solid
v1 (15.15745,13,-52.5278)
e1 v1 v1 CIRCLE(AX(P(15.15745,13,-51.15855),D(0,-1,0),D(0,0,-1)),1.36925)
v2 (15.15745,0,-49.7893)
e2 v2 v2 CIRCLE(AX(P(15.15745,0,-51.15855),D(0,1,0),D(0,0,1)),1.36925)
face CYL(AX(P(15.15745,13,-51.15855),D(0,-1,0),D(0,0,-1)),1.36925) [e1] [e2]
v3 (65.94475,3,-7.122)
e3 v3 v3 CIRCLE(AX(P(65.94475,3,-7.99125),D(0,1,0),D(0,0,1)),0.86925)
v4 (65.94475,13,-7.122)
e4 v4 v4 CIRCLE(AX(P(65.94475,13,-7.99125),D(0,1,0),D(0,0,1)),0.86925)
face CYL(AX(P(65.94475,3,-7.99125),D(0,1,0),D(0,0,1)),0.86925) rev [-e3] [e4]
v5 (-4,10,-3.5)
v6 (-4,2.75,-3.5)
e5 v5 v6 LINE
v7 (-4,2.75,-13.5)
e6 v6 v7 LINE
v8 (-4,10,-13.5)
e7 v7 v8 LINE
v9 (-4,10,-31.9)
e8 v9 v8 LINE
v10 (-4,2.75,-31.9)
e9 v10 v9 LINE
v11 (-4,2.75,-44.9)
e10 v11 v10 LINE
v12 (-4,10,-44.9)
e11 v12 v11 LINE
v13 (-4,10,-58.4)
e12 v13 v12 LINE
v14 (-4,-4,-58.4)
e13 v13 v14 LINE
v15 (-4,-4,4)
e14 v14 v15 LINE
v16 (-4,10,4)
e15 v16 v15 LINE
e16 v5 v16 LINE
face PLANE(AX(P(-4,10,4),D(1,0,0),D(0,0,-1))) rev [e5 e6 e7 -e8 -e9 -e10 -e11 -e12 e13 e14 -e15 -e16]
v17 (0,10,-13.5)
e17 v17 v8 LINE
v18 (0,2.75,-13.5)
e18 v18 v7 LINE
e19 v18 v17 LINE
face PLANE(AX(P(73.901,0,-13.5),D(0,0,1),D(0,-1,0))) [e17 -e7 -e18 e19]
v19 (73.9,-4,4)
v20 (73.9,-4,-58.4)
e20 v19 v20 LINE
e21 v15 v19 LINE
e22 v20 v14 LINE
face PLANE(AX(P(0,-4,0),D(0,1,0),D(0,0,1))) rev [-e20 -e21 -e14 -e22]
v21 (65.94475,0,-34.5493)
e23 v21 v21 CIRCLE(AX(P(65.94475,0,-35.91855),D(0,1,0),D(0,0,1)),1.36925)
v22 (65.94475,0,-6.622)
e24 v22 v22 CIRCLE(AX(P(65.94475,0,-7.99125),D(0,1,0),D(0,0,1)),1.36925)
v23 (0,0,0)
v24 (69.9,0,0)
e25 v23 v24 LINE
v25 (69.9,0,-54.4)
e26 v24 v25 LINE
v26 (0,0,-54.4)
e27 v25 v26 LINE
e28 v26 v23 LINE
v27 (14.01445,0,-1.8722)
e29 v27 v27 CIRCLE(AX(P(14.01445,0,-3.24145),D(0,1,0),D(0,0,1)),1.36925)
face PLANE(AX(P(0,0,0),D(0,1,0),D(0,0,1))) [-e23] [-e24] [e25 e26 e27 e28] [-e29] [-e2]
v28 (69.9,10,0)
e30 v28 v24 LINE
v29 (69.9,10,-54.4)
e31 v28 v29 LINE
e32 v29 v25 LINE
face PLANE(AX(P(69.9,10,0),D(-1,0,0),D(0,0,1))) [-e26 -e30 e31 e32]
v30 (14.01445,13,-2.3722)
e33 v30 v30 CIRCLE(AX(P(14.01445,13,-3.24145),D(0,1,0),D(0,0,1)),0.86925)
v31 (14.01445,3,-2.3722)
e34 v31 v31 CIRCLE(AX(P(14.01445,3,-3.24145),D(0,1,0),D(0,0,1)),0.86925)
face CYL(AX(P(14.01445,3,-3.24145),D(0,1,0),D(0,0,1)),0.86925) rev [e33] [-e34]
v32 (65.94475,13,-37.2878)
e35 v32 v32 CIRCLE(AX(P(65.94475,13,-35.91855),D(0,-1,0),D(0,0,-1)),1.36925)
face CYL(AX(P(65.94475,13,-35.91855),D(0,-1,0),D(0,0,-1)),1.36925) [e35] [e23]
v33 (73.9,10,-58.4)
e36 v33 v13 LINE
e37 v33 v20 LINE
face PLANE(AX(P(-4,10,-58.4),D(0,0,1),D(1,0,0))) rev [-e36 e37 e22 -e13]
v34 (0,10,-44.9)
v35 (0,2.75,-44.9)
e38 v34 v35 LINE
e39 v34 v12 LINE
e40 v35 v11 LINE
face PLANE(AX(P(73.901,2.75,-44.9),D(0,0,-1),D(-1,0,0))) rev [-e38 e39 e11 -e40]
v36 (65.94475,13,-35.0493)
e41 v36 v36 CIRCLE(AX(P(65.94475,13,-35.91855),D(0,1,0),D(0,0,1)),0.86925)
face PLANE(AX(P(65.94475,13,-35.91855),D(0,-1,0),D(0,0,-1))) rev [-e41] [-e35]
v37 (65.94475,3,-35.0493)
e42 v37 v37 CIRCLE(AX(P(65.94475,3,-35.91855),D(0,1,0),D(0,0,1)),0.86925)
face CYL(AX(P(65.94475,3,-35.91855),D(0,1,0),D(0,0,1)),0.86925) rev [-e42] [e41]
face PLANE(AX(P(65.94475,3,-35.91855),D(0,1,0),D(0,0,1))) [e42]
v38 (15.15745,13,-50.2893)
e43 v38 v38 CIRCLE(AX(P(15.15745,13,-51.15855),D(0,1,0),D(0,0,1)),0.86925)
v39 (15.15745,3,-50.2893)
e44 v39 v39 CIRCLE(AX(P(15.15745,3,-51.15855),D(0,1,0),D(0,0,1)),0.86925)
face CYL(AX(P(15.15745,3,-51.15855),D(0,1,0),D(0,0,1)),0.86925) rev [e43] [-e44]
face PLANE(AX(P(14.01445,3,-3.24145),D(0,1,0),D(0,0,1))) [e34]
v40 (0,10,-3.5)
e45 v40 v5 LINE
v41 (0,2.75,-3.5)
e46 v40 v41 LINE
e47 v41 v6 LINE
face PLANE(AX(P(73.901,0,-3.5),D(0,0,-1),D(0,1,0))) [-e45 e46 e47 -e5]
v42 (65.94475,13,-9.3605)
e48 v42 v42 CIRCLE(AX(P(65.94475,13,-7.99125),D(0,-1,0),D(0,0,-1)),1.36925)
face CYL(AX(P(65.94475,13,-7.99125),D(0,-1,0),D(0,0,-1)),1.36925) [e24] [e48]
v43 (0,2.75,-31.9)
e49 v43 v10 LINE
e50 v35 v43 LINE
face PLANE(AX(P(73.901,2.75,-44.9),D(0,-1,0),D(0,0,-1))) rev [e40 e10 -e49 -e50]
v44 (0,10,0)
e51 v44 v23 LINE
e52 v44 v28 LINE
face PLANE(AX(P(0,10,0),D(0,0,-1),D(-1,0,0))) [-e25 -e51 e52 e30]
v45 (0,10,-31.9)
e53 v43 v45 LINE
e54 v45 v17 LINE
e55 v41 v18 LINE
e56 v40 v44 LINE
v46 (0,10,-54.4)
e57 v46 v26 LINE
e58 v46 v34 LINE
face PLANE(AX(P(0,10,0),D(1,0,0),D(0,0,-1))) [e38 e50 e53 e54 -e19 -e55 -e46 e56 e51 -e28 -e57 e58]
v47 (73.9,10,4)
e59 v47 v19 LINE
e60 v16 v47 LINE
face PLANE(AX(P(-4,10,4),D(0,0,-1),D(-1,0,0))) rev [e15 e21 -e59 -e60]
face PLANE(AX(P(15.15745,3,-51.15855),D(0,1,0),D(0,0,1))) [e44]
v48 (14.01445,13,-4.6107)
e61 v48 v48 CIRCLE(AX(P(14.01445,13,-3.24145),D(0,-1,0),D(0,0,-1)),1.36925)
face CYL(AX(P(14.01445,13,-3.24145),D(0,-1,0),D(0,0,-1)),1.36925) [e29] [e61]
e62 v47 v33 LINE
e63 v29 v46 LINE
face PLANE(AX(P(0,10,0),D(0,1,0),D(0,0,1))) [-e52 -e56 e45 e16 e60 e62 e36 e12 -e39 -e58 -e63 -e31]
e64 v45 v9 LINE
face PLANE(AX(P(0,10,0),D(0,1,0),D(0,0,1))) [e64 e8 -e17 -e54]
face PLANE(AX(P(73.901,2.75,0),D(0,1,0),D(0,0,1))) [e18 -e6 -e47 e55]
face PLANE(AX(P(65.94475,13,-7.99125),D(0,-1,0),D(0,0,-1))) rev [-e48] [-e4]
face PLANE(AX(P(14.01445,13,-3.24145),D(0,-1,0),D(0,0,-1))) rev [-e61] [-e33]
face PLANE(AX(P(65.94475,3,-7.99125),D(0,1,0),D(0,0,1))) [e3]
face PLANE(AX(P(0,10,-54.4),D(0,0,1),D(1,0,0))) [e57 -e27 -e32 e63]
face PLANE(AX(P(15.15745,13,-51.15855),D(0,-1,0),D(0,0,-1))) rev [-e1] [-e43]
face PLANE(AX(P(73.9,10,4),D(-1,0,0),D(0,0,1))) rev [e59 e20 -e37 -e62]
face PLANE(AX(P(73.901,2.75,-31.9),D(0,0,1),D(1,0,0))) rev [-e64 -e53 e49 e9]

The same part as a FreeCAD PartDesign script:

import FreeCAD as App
import Part
import Sketcher
from FreeCAD import Vector


def add_polygon(sketch, points):
    """Adds a closed chain of lines whose ends are joined by coincident constraints."""
    first, n = sketch.GeometryCount, len(points)
    for a, b in zip(points, points[1:] + points[:1]):
        sketch.addGeometry(Part.LineSegment(App.Vector(*a, 0), App.Vector(*b, 0)), False)
    for i in range(n):
        sketch.addConstraint(Sketcher.Constraint("Coincident", first + i, 2, first + (i + 1) % n, 1))

doc = App.newDocument("Part")
params = doc.addObject("Spreadsheet::Sheet", "Params")
for row, (alias, value) in enumerate([
    ("sketch1_width", "77.9 mm"),
    ("sketch1_width2", "69.9 mm"),
    ("sketch1_height", "62.4 mm"),
    ("sketch1_height2", "54.4 mm"),
    ("pad1_length", "10 mm"),
    ("sketch2_width", "77.9 mm"),
    ("sketch2_height", "62.4 mm"),
    ("pad2_length", "4 mm"),
    ("sketch3_height", "13 mm"),
    ("sketch3_width", "7.25 mm"),
    ("sketch4_height", "10 mm"),
    ("sketch4_width", "7.25 mm"),
    ("pad3_length", "17 mm"),
    ("pocket3_length", "10 mm"),
], start=1):
    params.set(f"A{row}", alias)
    params.set(f"B{row}", "=" + value)
    params.setAlias(f"B{row}", alias)

body = doc.addObject("PartDesign::Body", "Body")

sketch1 = body.newObject("Sketcher::SketchObject", "Sketch")
sketch1.AttachmentSupport = (doc.getObject("XZ_Plane"), [""])
sketch1.MapMode = "FlatFace"
add_polygon(sketch1, [(-4, -58), (-4, 4), (74, 4), (74, -58)])
add_polygon(sketch1, [(70, 0), (0, 0), (0, -54), (70, -54)])
sketch1.addConstraint([
    Sketcher.Constraint("Vertical", 0),
    Sketcher.Constraint("Horizontal", 1),
    Sketcher.Constraint("Vertical", 2),
    Sketcher.Constraint("Horizontal", 3),
    Sketcher.Constraint("Horizontal", 4),
    Sketcher.Constraint("Vertical", 5),
    Sketcher.Constraint("Horizontal", 6),
    Sketcher.Constraint("Vertical", 7),
    Sketcher.Constraint("Coincident", 4, 2, -1, 1),
    Sketcher.Constraint("DistanceX", 1, 1, 1, 2, 77.9),
    Sketcher.Constraint("DistanceX", 4, 2, 4, 1, 69.9),
    Sketcher.Constraint("DistanceY", 0, 1, 0, 2, 62.4),
    Sketcher.Constraint("DistanceY", 5, 2, 5, 1, 54.4),
    Sketcher.Constraint("DistanceX", 0, 2, -1, 1, 4.0),
    Sketcher.Constraint("DistanceY", -1, 1, 0, 2, 4.0),
])
sketch1.setExpression("Constraints[17]", "Params.sketch1_width")
sketch1.setExpression("Constraints[18]", "Params.sketch1_width2")
sketch1.setExpression("Constraints[19]", "Params.sketch1_height")
sketch1.setExpression("Constraints[20]", "Params.sketch1_height2")
pad1 = body.newObject("PartDesign::Pad", "Pad")
pad1.Profile = sketch1
pad1.setExpression("Length", "Params.pad1_length")
pad1.Reversed = True

sketch2 = body.newObject("Sketcher::SketchObject", "Sketch001")
sketch2.AttachmentSupport = (doc.getObject("XZ_Plane"), [""])
sketch2.MapMode = "FlatFace"
add_polygon(sketch2, [(-4, -58), (-4, 4), (74, 4), (74, -58)])
sketch2.addConstraint([
    Sketcher.Constraint("Vertical", 0),
    Sketcher.Constraint("Horizontal", 1),
    Sketcher.Constraint("Vertical", 2),
    Sketcher.Constraint("Horizontal", 3),
    Sketcher.Constraint("DistanceX", 1, 1, 1, 2, 77.9),
    Sketcher.Constraint("DistanceY", 0, 1, 0, 2, 62.4),
    Sketcher.Constraint("DistanceX", 0, 2, -1, 1, 4.0),
    Sketcher.Constraint("DistanceY", -1, 1, 0, 2, 4.0),
])
sketch2.setExpression("Constraints[8]", "Params.sketch2_width")
sketch2.setExpression("Constraints[9]", "Params.sketch2_height")
pad2 = body.newObject("PartDesign::Pad", "Pad001")
pad2.Profile = sketch2
pad2.setExpression("Length", "Params.pad2_length")

sketch3 = body.newObject("Sketcher::SketchObject", "Sketch002")
sketch3.AttachmentSupport = (doc.getObject("YZ_Plane"), [""])
sketch3.MapMode = "FlatFace"
sketch3.AttachmentOffset = App.Placement(Vector(0, 0, -4), App.Rotation())
add_polygon(sketch3, [(10, -45), (3, -45), (3, -32), (10, -32)])
sketch3.addConstraint([
    Sketcher.Constraint("Horizontal", 0),
    Sketcher.Constraint("Vertical", 1),
    Sketcher.Constraint("Horizontal", 2),
    Sketcher.Constraint("Vertical", 3),
    Sketcher.Constraint("DistanceY", 1, 1, 1, 2, 13.0),
    Sketcher.Constraint("DistanceX", -1, 1, 2, 2, 10.0),
    Sketcher.Constraint("DistanceX", 0, 2, 0, 1, 7.25),
    Sketcher.Constraint("DistanceY", 0, 2, -1, 1, 44.9),
])
sketch3.setExpression("Constraints[8]", "Params.sketch3_height")
sketch3.setExpression("Constraints[10]", "Params.sketch3_width")
pocket1 = body.newObject("PartDesign::Pocket", "Pocket")
pocket1.Profile = sketch3
pocket1.Type = "UpToFirst"
pocket1.Reversed = True

sketch4 = body.newObject("Sketcher::SketchObject", "Sketch003")
sketch4.AttachmentSupport = (doc.getObject("YZ_Plane"), [""])
sketch4.MapMode = "FlatFace"
sketch4.AttachmentOffset = App.Placement(Vector(0, 0, -4), App.Rotation())
add_polygon(sketch4, [(10, -14), (3, -14), (3, -4), (10, -4)])
sketch4.addConstraint([
    Sketcher.Constraint("Horizontal", 0),
    Sketcher.Constraint("Vertical", 1),
    Sketcher.Constraint("Horizontal", 2),
    Sketcher.Constraint("Vertical", 3),
    Sketcher.Constraint("DistanceY", 1, 1, 1, 2, 10.0),
    Sketcher.Constraint("DistanceX", -1, 1, 2, 2, 10.0),
    Sketcher.Constraint("DistanceX", 0, 2, 0, 1, 7.25),
    Sketcher.Constraint("DistanceY", 0, 2, -1, 1, 13.5),
])
sketch4.setExpression("Constraints[8]", "Params.sketch4_height")
sketch4.setExpression("Constraints[10]", "Params.sketch4_width")
pocket2 = body.newObject("PartDesign::Pocket", "Pocket001")
pocket2.Profile = sketch4
pocket2.Type = "UpToFirst"
pocket2.Reversed = True

sketch5 = body.newObject("Sketcher::SketchObject", "Sketch004")
sketch5.AttachmentSupport = (doc.getObject("XZ_Plane"), [""])
sketch5.MapMode = "FlatFace"
sketch5.AttachmentOffset = App.Placement(Vector(0, 0, 4), App.Rotation())
sketch5.addGeometry([
    Part.Circle(Vector(65.9, -8, 0), Vector(0, 0, 1), 1.4),
    Part.Circle(Vector(15.2, -51.2, 0), Vector(0, 0, 1), 1.4),
    Part.Circle(Vector(65.9, -35.9, 0), Vector(0, 0, 1), 1.4),
    Part.Circle(Vector(14, -3.2, 0), Vector(0, 0, 1), 1.4),
], False)
sketch5.addConstraint([
    Sketcher.Constraint("Equal", 0, 1),
    Sketcher.Constraint("Equal", 1, 2),
    Sketcher.Constraint("Equal", 2, 3),
    Sketcher.Constraint("Vertical", 0, 3, 2, 3),
    Sketcher.Constraint("Diameter", 0, 2.7385),
    Sketcher.Constraint("DistanceY", 1, 3, 2, 3, 15.24),
    Sketcher.Constraint("DistanceX", 3, 3, 1, 3, 1.143),
    Sketcher.Constraint("DistanceX", 1, 3, 0, 3, 50.7873),
    Sketcher.Constraint("DistanceY", 1, 3, 0, 3, 43.1673),
    Sketcher.Constraint("DistanceY", 1, 3, 3, 3, 47.9171),
    Sketcher.Constraint("DistanceX", -1, 1, 0, 3, 65.94475),
    Sketcher.Constraint("DistanceY", 0, 3, -1, 1, 7.99125),
])
pad3 = body.newObject("PartDesign::Pad", "Pad002")
pad3.Profile = sketch5
pad3.setExpression("Length", "Params.pad3_length")
pad3.Reversed = True

sketch6 = body.newObject("Sketcher::SketchObject", "Sketch005")
sketch6.AttachmentSupport = (doc.getObject("XZ_Plane"), [""])
sketch6.MapMode = "FlatFace"
sketch6.AttachmentOffset = App.Placement(Vector(0, 0, -13), App.Rotation())
sketch6.addGeometry([
    Part.Circle(Vector(65.9, -35.9, 0), Vector(0, 0, 1), 0.9),
    Part.Circle(Vector(65.9, -8, 0), Vector(0, 0, 1), 0.9),
    Part.Circle(Vector(14, -3.2, 0), Vector(0, 0, 1), 0.9),
    Part.Circle(Vector(15.2, -51.2, 0), Vector(0, 0, 1), 0.9),
], False)
sketch6.addConstraint([
    Sketcher.Constraint("Equal", 0, 1),
    Sketcher.Constraint("Equal", 1, 2),
    Sketcher.Constraint("Equal", 2, 3),
    Sketcher.Constraint("Vertical", 0, 3, 1, 3),
    Sketcher.Constraint("Diameter", 0, 1.7385),
    Sketcher.Constraint("DistanceY", 3, 3, 0, 3, 15.24),
    Sketcher.Constraint("DistanceX", 2, 3, 3, 3, 1.143),
    Sketcher.Constraint("DistanceY", 0, 3, 1, 3, 27.9273),
    Sketcher.Constraint("DistanceX", 2, 3, 1, 3, 51.9303),
    Sketcher.Constraint("DistanceY", 1, 3, 2, 3, 4.7498),
    Sketcher.Constraint("DistanceX", -1, 1, 0, 3, 65.94475),
    Sketcher.Constraint("DistanceY", 0, 3, -1, 1, 35.91855),
])
pocket3 = body.newObject("PartDesign::Pocket", "Pocket002")
pocket3.Profile = sketch6
pocket3.setExpression("Length", "Params.pocket3_length")
pocket3.Reversed = True

doc.recompute()
